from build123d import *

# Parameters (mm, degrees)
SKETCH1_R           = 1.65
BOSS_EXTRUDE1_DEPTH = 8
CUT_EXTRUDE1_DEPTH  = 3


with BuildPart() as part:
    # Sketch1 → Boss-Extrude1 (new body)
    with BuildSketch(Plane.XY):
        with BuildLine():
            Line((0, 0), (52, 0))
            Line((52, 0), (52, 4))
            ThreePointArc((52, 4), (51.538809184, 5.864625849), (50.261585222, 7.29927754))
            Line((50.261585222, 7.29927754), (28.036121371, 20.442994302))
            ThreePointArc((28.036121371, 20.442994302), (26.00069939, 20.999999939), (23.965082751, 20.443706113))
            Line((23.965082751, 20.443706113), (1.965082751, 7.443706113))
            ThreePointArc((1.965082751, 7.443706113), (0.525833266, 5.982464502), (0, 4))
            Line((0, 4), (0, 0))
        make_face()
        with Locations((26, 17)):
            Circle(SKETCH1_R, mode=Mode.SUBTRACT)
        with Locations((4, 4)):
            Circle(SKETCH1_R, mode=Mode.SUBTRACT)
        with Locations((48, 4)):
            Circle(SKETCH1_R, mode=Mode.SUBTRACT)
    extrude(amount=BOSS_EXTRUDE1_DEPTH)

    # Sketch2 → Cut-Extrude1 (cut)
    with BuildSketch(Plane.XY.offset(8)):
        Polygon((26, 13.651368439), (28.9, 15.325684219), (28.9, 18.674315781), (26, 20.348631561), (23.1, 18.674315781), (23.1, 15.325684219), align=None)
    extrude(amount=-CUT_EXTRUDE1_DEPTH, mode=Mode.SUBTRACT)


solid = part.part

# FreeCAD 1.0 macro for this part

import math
import FreeCAD as App
import Part
import Sketcher

V = App.Vector
Q = App.Units.Quantity


def add_polygon(sketch, points):
    """Adds a closed chain of lines whose ends are joined by coincident constraints."""
    first, n = sketch.GeometryCount, len(points)
    for a, b in zip(points, points[1:] + points[:1]):
        sketch.addGeometry(Part.LineSegment(App.Vector(*a, 0), App.Vector(*b, 0)), False)
    for i in range(n):
        sketch.addConstraint(Sketcher.Constraint("Coincident", first + i, 2, first + (i + 1) % n, 1))

doc = App.newDocument("Part")
body = doc.addObject("PartDesign::Body", "Body")

sketch1 = doc.addObject("Sketcher::SketchObject", "Sketch")
body.addObject(sketch1)
sketch1.AttachmentSupport = (doc.XY_Plane, [""])
sketch1.MapMode = "FlatFace"
sketch1.addGeometry([
    Part.LineSegment(V(0, 0, 0), V(52, 0, 0)),
    Part.LineSegment(V(52, 0, 0), V(52, 4, 0)),
    Part.ArcOfCircle(Part.Circle(V(48, 4, 0), V(0, 0, 1), 4), math.radians(0), math.radians(55.570184)),
    Part.LineSegment(V(50.261585, 7.299278, 0), V(28.036121, 20.442994, 0)),
    Part.ArcOfCircle(Part.Circle(V(26, 17, 0), V(0, 0, 1), 4), math.radians(59.400737), math.radians(120.579227)),
    Part.LineSegment(V(23.965083, 20.443706, 0), V(1.965083, 7.443706, 0)),
    Part.ArcOfCircle(Part.Circle(V(4, 4, 0), V(0, 0, 1), 4), math.radians(120.579227), math.radians(180)),
    Part.LineSegment(V(0, 4, 0), V(0, 0, 0)),
    Part.Circle(V(4, 4, 0), V(0, 0, 1), 1.65),
    Part.Circle(V(48, 4, 0), V(0, 0, 1), 1.65),
    Part.Circle(V(26, 17, 0), V(0, 0, 1), 1.65),
], False)
sketch1.addConstraint([
    Sketcher.Constraint("Coincident", 0, 2, 1, 1),
    Sketcher.Constraint("Coincident", 1, 2, 2, 1),
    Sketcher.Constraint("Coincident", 2, 2, 3, 1),
    Sketcher.Constraint("Coincident", 3, 2, 4, 1),
    Sketcher.Constraint("Coincident", 4, 2, 5, 1),
    Sketcher.Constraint("Coincident", 5, 2, 6, 1),
    Sketcher.Constraint("Coincident", 6, 2, 7, 1),
    Sketcher.Constraint("Coincident", 7, 2, 0, 1),
    Sketcher.Constraint("Horizontal", 0),
    Sketcher.Constraint("Vertical", 1),
    Sketcher.Constraint("Vertical", 7),
    Sketcher.Constraint("Coincident", 7, 2, -1, 1),
    Sketcher.Constraint("Coincident", 8, 3, 6, 3),
    Sketcher.Constraint("Coincident", 9, 3, 2, 3),
    Sketcher.Constraint("Coincident", 10, 3, 4, 3),
    Sketcher.Constraint("Radius", 2, 4.0),
    Sketcher.Constraint("Radius", 4, 4.0),
    Sketcher.Constraint("Radius", 6, 4.0),
    Sketcher.Constraint("Diameter", 8, 3.3),
    Sketcher.Constraint("Diameter", 9, 3.3),
    Sketcher.Constraint("Diameter", 10, 3.3),
    Sketcher.Constraint("DistanceX", 0, 1, 0, 2, 52.0),
    Sketcher.Constraint("DistanceY", 1, 1, 1, 2, 4.0),
    Sketcher.Constraint("DistanceY", 7, 2, 7, 1, 4.0),
    Sketcher.Constraint("DistanceY", -1, 1, 2, 3, 4.0),
    Sketcher.Constraint("DistanceX", -1, 1, 4, 3, 26.0),
    Sketcher.Constraint("DistanceY", -1, 1, 4, 3, 17.0),
    Sketcher.Constraint("DistanceY", -1, 1, 6, 3, 4.0),
    Sketcher.Constraint("DistanceX", 5, 2, 4, 2, 22.0),
    Sketcher.Constraint("DistanceX", -1, 1, 3, 2, 28.036121),
    Sketcher.Constraint("DistanceX", 4, 2, 3, 2, 4.071039),
    Sketcher.Constraint("Distance", 3, 25.821087),
])
pad1 = doc.addObject("PartDesign::Pad", "Pad")
body.addObject(pad1)
pad1.Profile = sketch1
pad1.Length = 8

sketch2 = doc.addObject("Sketcher::SketchObject", "Sketch001")
body.addObject(sketch2)
sketch2.AttachmentSupport = (doc.XY_Plane, [""])
sketch2.MapMode = "FlatFace"
sketch2.AttachmentOffset = App.Placement(V(0, 0, 8), App.Rotation())
add_polygon(sketch2, [(26, 13.7), (28.9, 15.3), (28.9, 18.7), (26, 20.3), (23.1, 18.7), (23.1, 15.3)])
sketch2.addConstraint([
    Sketcher.Constraint("Vertical", 1),
    Sketcher.Constraint("Vertical", 4),
    Sketcher.Constraint("Parallel", 0, 3),
    Sketcher.Constraint("Parallel", 2, 5),
    Sketcher.Constraint("Horizontal", 1, 2, 3, 2),
    Sketcher.Constraint("Horizontal", 0, 2, 4, 2),
    Sketcher.Constraint("Vertical", 2, 2, 5, 2),
    Sketcher.Constraint("Angle", 0, Q("30 deg")),
    Sketcher.Constraint("DistanceX", -1, 1, 2, 2, 26.0),
    Sketcher.Constraint("DistanceX", -1, 1, 0, 2, 28.9),
    Sketcher.Constraint("DistanceY", 1, 1, 1, 2, 3.348632),
    Sketcher.Constraint("DistanceY", -1, 1, 2, 2, 20.348632),
])
pocket1 = doc.addObject("PartDesign::Pocket", "Pocket")
body.addObject(pocket1)
pocket1.Profile = sketch2
pocket1.Length = 3

doc.recompute()
